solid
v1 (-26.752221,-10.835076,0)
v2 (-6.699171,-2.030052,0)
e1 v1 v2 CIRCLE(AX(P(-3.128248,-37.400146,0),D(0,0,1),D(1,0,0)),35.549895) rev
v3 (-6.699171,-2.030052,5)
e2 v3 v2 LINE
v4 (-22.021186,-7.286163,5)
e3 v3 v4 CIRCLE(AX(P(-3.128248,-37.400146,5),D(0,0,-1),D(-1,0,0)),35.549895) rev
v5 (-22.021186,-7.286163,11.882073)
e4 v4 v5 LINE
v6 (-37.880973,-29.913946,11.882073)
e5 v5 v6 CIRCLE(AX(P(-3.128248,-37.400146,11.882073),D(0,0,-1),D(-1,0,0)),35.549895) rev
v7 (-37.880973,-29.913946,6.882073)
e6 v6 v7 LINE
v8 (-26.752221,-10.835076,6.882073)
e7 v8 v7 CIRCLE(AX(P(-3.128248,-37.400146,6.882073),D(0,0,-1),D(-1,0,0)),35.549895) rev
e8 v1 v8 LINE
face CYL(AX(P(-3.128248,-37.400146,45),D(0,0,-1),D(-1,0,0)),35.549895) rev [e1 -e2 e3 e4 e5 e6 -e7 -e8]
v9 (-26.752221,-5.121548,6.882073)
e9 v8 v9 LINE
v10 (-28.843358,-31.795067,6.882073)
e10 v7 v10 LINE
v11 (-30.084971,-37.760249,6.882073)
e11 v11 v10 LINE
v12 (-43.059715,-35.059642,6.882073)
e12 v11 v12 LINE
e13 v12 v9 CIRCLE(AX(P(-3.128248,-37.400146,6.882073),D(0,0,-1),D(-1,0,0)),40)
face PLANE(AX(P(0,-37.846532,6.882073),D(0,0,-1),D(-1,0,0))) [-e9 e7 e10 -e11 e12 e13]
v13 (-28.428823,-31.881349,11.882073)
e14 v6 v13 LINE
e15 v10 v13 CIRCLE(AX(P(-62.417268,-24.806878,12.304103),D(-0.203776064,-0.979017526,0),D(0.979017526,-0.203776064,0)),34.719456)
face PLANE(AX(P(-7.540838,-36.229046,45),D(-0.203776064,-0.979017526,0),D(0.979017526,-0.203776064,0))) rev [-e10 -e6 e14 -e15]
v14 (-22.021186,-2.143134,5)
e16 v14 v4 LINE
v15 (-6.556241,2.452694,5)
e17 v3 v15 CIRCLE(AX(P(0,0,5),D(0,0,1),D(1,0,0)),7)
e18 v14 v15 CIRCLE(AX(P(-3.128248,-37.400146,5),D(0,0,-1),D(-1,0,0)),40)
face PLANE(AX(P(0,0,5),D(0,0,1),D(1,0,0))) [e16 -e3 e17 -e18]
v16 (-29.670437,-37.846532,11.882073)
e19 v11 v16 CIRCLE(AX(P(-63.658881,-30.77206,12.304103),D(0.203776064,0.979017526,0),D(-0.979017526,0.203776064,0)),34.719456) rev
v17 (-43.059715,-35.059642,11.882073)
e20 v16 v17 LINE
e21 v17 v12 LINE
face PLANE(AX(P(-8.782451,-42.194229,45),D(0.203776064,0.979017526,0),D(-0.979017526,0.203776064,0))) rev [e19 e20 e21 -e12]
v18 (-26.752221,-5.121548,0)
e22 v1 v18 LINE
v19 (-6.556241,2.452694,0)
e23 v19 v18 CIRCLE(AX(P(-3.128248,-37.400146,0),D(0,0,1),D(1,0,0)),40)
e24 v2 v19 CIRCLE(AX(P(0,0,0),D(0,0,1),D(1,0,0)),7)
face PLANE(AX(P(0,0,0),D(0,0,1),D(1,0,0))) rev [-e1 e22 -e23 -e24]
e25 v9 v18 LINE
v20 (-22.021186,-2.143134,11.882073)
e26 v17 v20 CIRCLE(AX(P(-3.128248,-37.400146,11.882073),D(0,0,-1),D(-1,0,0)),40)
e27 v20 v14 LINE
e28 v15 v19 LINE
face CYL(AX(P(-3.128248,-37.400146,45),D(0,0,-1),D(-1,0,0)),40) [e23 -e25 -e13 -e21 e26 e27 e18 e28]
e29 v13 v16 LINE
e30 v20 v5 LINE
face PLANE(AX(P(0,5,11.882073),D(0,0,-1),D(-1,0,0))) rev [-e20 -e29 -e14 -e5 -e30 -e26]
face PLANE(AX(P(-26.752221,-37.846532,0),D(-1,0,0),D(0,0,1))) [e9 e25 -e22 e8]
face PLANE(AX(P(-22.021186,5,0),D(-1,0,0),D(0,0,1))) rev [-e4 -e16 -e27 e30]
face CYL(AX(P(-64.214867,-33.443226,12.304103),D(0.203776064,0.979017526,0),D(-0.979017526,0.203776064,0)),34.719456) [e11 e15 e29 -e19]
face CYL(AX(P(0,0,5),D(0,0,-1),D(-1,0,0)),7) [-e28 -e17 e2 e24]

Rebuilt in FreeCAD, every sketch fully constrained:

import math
import FreeCAD as App
import Part
import Sketcher
from FreeCAD import Vector


def add_polygon(sketch, points):
    """Adds a closed chain of lines whose ends are joined by coincident constraints."""
    first, n = sketch.GeometryCount, len(points)
    for a, b in zip(points, points[1:] + points[:1]):
        sketch.addGeometry(Part.LineSegment(App.Vector(*a, 0), App.Vector(*b, 0)), False)
    for i in range(n):
        sketch.addConstraint(Sketcher.Constraint("Coincident", first + i, 2, first + (i + 1) % n, 1))

doc = App.newDocument("Part")
body = doc.addObject("PartDesign::Body", "Body")

sketch1 = body.newObject("Sketcher::SketchObject", "Sketch")
sketch1.AttachmentSupport = (doc.getObject("XY_Plane"), [""])
sketch1.MapMode = "FlatFace"
sketch1.addGeometry(Part.Circle(Vector(0, 0, 0), Vector(0, 0, 1), 7), False)
sketch1.addConstraint(Sketcher.Constraint("Coincident", 0, 3, -1, 1))
sketch1.addConstraint(Sketcher.Constraint("Diameter", 0, 14.0))
pad1 = body.newObject("PartDesign::Pad", "Pad")
pad1.Profile = sketch1
pad1.Length = 5

sketch2 = body.newObject("Sketcher::SketchObject", "Sketch001")
sketch2.AttachmentSupport = (doc.getObject("XY_Plane"), [""])
sketch2.MapMode = "FlatFace"
sketch2.addGeometry(Part.ArcOfCircle(Part.Circle(Vector(-3.128248, -37.400146, 0), Vector(0, 0, 1), 40), math.radians(94.916268), math.radians(176.645559)), False)
sketch2.addGeometry(Part.LineSegment(Vector(-43.059715, -35.059642, 0), Vector(-29.670437, -37.846532, 0)), False)
sketch2.addGeometry(Part.LineSegment(Vector(-29.670437, -37.846532, 0), Vector(-28.428823, -31.881349, 0)), False)
sketch2.addGeometry(Part.LineSegment(Vector(-28.428823, -31.881349, 0), Vector(-37.880973, -29.913946, 0)), False)
sketch2.addGeometry(Part.ArcOfCircle(Part.Circle(Vector(-3.128248, -37.400146, 0), Vector(0, 0, 1), 35.549895), math.radians(95.76498), math.radians(167.843487)), False)
sketch2.addGeometry(Part.ArcOfCircle(Part.Circle(Vector(0, 0, 0), Vector(0, 0, 1), 7), math.radians(159.489141), math.radians(196.858399)), False)
sketch2.addConstraint(Sketcher.Constraint("Coincident", 0, 2, 1, 1))
sketch2.addConstraint(Sketcher.Constraint("Coincident", 1, 2, 2, 1))
sketch2.addConstraint(Sketcher.Constraint("Coincident", 2, 2, 3, 1))
sketch2.addConstraint(Sketcher.Constraint("Coincident", 3, 2, 4, 2))
sketch2.addConstraint(Sketcher.Constraint("Coincident", 4, 1, 5, 2))
sketch2.addConstraint(Sketcher.Constraint("Coincident", 5, 1, 0, 1))
sketch2.addConstraint(Sketcher.Constraint("Coincident", 5, 3, -1, 1))
sketch2.addConstraint(Sketcher.Constraint("Coincident", 4, 3, 0, 3))
sketch2.addConstraint(Sketcher.Constraint("Perpendicular", 1, 2))
sketch2.addConstraint(Sketcher.Constraint("Perpendicular", 2, 3))
sketch2.addConstraint(Sketcher.Constraint("Radius", 0, 40.0))
sketch2.addConstraint(Sketcher.Constraint("Radius", 5, 7.0))
sketch2.addConstraint(Sketcher.Constraint("Radius", 4, 35.549895))
sketch2.addConstraint(Sketcher.Constraint("DistanceY", 4, 3, 3, 2, 7.486199))
sketch2.addConstraint(Sketcher.Constraint("DistanceX", 3, 2, 4, 1, 31.181802))
sketch2.addConstraint(Sketcher.Constraint("Distance", 1, 13.676239))
sketch2.addConstraint(Sketcher.Constraint("Distance", 2, 6.093029))
sketch2.addConstraint(Sketcher.Constraint("Distance", 3, 9.654729))
sketch2.addConstraint(Sketcher.Constraint("DistanceX", 0, 3, -1, 1, 3.128248))
pad2 = body.newObject("PartDesign::Pad", "Pad001")
pad2.Profile = sketch2
pad2.Length = 45

sketch3 = body.newObject("Sketcher::SketchObject", "Sketch002")
sketch3.AttachmentSupport = (doc.getObject("XZ_Plane"), [""])
sketch3.MapMode = "FlatFace"
add_polygon(sketch3, [(-6.556241, 21.643777), (-6.556241, 5), (-22.021186, 5), (-22.021186, 11.882073), (-43.059715, 11.882073), (-43.059715, 53.527021), (-6.425184, 53.527021)])
sketch3.addConstraint(Sketcher.Constraint("Vertical", 0))
sketch3.addConstraint(Sketcher.Constraint("Horizontal", 1))
sketch3.addConstraint(Sketcher.Constraint("Vertical", 2))
sketch3.addConstraint(Sketcher.Constraint("Horizontal", 3))
sketch3.addConstraint(Sketcher.Constraint("Vertical", 4))
sketch3.addConstraint(Sketcher.Constraint("Horizontal", 5))
sketch3.addConstraint(Sketcher.Constraint("DistanceY", -1, 1, 0, 2, 5.0))
sketch3.addConstraint(Sketcher.Constraint("DistanceX", 2, 2, 5, 2, 15.596002))
sketch3.addConstraint(Sketcher.Constraint("DistanceX", 3, 2, 3, 1, 21.038529))
sketch3.addConstraint(Sketcher.Constraint("DistanceX", 1, 2, 1, 1, 15.464945))
sketch3.addConstraint(Sketcher.Constraint("DistanceY", 0, 2, 0, 1, 16.643777))
sketch3.addConstraint(Sketcher.Constraint("DistanceY", 2, 1, 2, 2, 6.882073))
sketch3.addConstraint(Sketcher.Constraint("DistanceY", 4, 1, 4, 2, 41.644947))
sketch3.addConstraint(Sketcher.Constraint("DistanceX", 0, 2, -1, 1, 6.556241))
pocket1 = body.newObject("PartDesign::Pocket", "Pocket")
pocket1.Profile = sketch3
pocket1.Type = "ThroughAll"
pocket1.Midplane = True

sketch4 = body.newObject("Sketcher::SketchObject", "Sketch003")
sketch4.AttachmentSupport = (doc.getObject("XZ_Plane"), [""])
sketch4.MapMode = "FlatFace"
add_polygon(sketch4, [(-43.059715, 0), (-43.059715, 6.882073), (-26.752221, 6.882073), (-26.752221, 0)])
sketch4.addConstraint(Sketcher.Constraint("Vertical", 0))
sketch4.addConstraint(Sketcher.Constraint("Horizontal", 1))
sketch4.addConstraint(Sketcher.Constraint("Vertical", 2))
sketch4.addConstraint(Sketcher.Constraint("Horizontal", 3))
sketch4.addConstraint(Sketcher.Constraint("PointOnObject", 2, 2, -1))
sketch4.addConstraint(Sketcher.Constraint("DistanceX", 1, 1, 1, 2, 16.307494))
sketch4.addConstraint(Sketcher.Constraint("DistanceY", 0, 1, 0, 2, 6.882073))
sketch4.addConstraint(Sketcher.Constraint("DistanceX", 1, 2, -1, 1, 26.752221))
pocket2 = body.newObject("PartDesign::Pocket", "Pocket001")
pocket2.Profile = sketch4
pocket2.Type = "ThroughAll"
pocket2.Reversed = True

sketch5 = body.newObject("Sketcher::SketchObject", "Sketch004")
sketch5.Placement = App.Placement(Vector(-7.540838, -36.229046, 0), App.Rotation(Vector(0.979017526, -0.203776064, 0), Vector(0, 0, -1), Vector(0.203776064, 0.979017526, 0), "ZXY"))
sketch5.addGeometry(Part.LineSegment(Vector(-21.33566, -6.882073, 0), Vector(-21.759079, -6.882073, 0)), False)
sketch5.addGeometry(Part.ArcOfCircle(Part.Circle(Vector(-56.052551, -12.304103, 0), Vector(0, 0, 1), 34.719456), math.radians(0.696472), math.radians(8.984479)), False)
sketch5.addGeometry(Part.LineSegment(Vector(-21.33566, -11.882073, 0), Vector(-21.33566, -6.882073, 0)), False)
sketch5.addConstraint(Sketcher.Constraint("Coincident", 0, 2, 1, 2))
sketch5.addConstraint(Sketcher.Constraint("Coincident", 1, 1, 2, 1))
sketch5.addConstraint(Sketcher.Constraint("Coincident", 2, 2, 0, 1))
sketch5.addConstraint(Sketcher.Constraint("Horizontal", 0))
sketch5.addConstraint(Sketcher.Constraint("Vertical", 2))
sketch5.addConstraint(Sketcher.Constraint("DistanceY", 2, 1, 2, 2, 5.0))
sketch5.addConstraint(Sketcher.Constraint("Radius", 1, 34.719456))
sketch5.addConstraint(Sketcher.Constraint("DistanceX", 0, 2, 0, 1, 0.423419))
sketch5.addConstraint(Sketcher.Constraint("DistanceX", 1, 3, -1, 1, 56.052551))
sketch5.addConstraint(Sketcher.Constraint("DistanceY", 1, 3, -1, 1, 12.304103))
pocket3 = body.newObject("PartDesign::Pocket", "Pocket002")
pocket3.Profile = sketch5
pocket3.Type = "ThroughAll"

doc.recompute()
